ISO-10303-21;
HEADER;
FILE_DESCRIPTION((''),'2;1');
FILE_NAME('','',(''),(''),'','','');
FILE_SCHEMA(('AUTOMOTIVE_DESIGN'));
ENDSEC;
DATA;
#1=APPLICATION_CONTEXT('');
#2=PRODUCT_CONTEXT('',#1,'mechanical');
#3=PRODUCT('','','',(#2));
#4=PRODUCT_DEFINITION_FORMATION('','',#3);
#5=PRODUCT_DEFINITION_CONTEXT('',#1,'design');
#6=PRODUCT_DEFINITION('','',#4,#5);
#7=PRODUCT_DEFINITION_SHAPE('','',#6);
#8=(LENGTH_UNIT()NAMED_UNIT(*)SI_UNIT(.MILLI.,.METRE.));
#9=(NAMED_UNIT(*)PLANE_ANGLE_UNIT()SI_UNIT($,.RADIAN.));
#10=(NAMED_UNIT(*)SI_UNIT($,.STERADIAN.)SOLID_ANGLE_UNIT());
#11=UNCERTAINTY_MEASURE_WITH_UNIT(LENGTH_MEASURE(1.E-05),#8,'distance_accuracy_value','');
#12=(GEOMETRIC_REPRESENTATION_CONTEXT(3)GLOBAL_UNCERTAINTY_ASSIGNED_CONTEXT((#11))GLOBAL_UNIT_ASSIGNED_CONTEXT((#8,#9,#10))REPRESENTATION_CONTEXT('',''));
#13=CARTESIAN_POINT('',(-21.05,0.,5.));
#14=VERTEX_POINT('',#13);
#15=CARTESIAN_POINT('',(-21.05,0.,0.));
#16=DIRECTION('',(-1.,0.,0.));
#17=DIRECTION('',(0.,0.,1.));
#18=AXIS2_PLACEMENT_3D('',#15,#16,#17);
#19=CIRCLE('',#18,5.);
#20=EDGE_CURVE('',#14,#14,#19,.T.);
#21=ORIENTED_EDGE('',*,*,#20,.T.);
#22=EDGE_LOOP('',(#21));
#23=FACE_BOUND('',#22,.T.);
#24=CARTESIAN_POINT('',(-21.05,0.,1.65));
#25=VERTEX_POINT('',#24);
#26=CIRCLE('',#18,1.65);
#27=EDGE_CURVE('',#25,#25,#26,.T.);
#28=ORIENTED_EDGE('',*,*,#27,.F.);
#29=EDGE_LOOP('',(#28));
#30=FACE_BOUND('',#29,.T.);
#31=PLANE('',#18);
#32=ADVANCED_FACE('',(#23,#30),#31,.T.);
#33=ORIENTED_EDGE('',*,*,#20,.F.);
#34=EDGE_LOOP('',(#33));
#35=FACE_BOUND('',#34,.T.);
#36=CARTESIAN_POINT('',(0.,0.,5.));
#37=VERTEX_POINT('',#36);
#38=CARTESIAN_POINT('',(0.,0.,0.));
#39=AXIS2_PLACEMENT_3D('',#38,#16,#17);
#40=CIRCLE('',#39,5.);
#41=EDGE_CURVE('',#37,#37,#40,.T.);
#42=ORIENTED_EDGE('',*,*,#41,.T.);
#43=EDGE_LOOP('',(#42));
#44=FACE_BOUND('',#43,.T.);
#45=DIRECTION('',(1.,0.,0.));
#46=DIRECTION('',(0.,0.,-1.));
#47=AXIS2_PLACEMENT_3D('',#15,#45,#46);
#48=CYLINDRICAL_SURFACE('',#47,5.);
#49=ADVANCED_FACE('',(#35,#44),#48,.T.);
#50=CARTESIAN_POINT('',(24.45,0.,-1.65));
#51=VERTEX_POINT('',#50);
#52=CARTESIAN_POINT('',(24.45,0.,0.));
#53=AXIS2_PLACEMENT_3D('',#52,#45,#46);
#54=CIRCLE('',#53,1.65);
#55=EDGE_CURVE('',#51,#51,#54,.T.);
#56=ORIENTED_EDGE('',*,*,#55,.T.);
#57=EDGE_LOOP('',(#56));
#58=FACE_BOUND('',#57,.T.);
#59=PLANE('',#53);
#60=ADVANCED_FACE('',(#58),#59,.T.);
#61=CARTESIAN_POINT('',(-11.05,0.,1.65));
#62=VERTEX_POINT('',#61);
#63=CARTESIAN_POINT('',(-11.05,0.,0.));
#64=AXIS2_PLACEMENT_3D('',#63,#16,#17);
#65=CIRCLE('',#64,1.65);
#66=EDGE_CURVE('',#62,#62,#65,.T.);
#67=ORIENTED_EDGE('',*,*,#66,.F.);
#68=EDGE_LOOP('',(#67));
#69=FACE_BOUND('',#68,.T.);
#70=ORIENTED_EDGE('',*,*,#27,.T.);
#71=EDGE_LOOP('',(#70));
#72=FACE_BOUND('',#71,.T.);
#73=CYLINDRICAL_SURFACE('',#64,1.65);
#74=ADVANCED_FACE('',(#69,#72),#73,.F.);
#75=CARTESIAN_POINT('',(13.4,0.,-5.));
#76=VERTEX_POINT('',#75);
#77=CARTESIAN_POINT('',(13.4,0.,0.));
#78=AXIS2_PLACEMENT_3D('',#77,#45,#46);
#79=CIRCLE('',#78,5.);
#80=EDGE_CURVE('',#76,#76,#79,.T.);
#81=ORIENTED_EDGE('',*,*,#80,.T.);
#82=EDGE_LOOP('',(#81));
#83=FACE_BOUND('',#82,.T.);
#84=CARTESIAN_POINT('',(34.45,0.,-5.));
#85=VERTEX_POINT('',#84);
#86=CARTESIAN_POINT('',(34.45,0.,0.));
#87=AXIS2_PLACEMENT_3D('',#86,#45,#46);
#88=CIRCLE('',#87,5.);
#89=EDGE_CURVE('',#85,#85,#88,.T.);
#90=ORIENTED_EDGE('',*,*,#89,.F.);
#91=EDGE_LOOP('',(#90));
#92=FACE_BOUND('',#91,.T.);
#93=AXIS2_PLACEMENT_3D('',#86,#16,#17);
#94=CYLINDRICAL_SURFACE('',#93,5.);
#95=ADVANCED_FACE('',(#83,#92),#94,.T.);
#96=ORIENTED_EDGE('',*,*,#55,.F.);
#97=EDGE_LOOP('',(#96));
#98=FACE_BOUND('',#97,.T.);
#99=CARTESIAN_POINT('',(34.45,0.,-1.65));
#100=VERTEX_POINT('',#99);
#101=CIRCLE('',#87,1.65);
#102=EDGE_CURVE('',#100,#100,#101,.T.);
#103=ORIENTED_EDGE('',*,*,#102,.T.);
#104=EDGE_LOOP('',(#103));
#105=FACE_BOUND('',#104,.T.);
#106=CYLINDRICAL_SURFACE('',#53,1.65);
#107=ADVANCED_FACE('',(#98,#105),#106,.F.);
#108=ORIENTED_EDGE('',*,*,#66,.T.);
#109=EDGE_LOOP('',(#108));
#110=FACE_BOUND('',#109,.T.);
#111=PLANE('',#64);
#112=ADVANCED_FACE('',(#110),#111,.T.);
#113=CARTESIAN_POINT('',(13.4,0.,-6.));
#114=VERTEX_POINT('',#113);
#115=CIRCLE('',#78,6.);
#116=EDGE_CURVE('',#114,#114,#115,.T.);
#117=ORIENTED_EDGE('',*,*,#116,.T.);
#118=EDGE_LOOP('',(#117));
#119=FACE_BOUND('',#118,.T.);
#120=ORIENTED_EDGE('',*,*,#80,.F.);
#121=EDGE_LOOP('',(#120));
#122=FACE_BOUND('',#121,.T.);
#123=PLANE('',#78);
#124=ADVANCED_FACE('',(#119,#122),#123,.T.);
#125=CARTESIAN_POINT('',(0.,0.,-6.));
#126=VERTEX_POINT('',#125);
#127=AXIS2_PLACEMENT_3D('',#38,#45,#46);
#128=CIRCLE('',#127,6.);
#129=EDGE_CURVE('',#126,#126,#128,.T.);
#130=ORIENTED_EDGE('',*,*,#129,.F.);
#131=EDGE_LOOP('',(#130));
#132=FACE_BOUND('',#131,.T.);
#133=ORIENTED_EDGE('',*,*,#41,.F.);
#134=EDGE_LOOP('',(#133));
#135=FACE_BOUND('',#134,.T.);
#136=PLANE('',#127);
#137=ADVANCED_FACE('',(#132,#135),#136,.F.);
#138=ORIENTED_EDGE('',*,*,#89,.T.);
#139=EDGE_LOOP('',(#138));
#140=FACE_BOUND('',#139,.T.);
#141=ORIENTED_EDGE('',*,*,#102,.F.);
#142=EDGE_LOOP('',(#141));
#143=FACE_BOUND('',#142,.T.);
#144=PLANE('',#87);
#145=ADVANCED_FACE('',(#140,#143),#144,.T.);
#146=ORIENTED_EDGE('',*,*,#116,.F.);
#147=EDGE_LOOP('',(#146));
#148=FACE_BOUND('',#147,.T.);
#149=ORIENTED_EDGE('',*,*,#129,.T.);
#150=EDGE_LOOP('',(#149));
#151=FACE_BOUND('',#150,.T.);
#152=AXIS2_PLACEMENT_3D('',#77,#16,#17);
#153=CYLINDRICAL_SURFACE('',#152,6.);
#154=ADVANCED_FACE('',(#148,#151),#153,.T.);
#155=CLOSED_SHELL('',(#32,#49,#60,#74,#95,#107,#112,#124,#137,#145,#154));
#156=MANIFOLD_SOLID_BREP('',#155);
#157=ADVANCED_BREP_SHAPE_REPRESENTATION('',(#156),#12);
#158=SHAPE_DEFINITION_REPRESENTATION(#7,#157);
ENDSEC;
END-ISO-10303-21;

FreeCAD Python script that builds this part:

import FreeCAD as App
import Part
import Sketcher

V = App.Vector
Q = App.Units.Quantity

doc = App.newDocument("Part")
body = doc.addObject("PartDesign::Body", "Body")

# Sketch on YZ plane
sketch1 = body.newObject("Sketcher::SketchObject", "Sketch")
sketch1.AttachmentSupport = (doc.getObject("YZ_Plane"), [""])
sketch1.MapMode = "FlatFace"
sketch1.addGeometry(Part.Circle(V(0, 0, 0), V(0, 0, 1), 6), False)
sketch1.addConstraint(Sketcher.Constraint("Coincident", 0, 3, -1, 1))
sketch1.addConstraint(Sketcher.Constraint("Diameter", 0, Q("12 mm")))
pad1 = body.newObject("PartDesign::Pad", "Pad")
pad1.Profile = sketch1
pad1.Length = 13.4

# Sketch on YZ plane
sketch2 = body.newObject("Sketcher::SketchObject", "Sketch001")
sketch2.AttachmentSupport = (doc.getObject("YZ_Plane"), [""])
sketch2.MapMode = "FlatFace"
sketch2.AttachmentOffset = App.Placement(V(0, 0, 13.4), App.Rotation())
sketch2.addGeometry(Part.Circle(V(0, 0, 0), V(0, 0, 1), 5), False)
sketch2.addConstraint(Sketcher.Constraint("Coincident", 0, 3, -1, 1))
sketch2.addConstraint(Sketcher.Constraint("Diameter", 0, Q("10 mm")))
pad2 = body.newObject("PartDesign::Pad", "Pad001")
pad2.Profile = sketch2
pad2.Length = 21.05

# Sketch on YZ plane
sketch3 = body.newObject("Sketcher::SketchObject", "Sketch002")
sketch3.AttachmentSupport = (doc.getObject("YZ_Plane"), [""])
sketch3.MapMode = "FlatFace"
sketch3.AttachmentOffset = App.Placement(V(0, 0, -21.05), App.Rotation())
sketch3.addGeometry(Part.Circle(V(0, 0, 0), V(0, 0, 1), 5), False)
sketch3.addConstraint(Sketcher.Constraint("Coincident", 0, 3, -1, 1))
sketch3.addConstraint(Sketcher.Constraint("Diameter", 0, Q("10 mm")))
pad3 = body.newObject("PartDesign::Pad", "Pad002")
pad3.Profile = sketch3
pad3.Length = 21.05

# Sketch on YZ plane
sketch4 = body.newObject("Sketcher::SketchObject", "Sketch003")
sketch4.AttachmentSupport = (doc.getObject("YZ_Plane"), [""])
sketch4.MapMode = "FlatFace"
sketch4.AttachmentOffset = App.Placement(V(0, 0, 34.45), App.Rotation())
sketch4.addGeometry(Part.Circle(V(0, 0, 0), V(0, 0, 1), 1.6), False)
sketch4.addConstraint(Sketcher.Constraint("Coincident", 0, 3, -1, 1))
sketch4.addConstraint(Sketcher.Constraint("Diameter", 0, Q("3.3 mm")))
pocket1 = body.newObject("PartDesign::Pocket", "Pocket")
pocket1.Profile = sketch4
pocket1.Length = 10

# Sketch on YZ plane
sketch5 = body.newObject("Sketcher::SketchObject", "Sketch004")
sketch5.AttachmentSupport = (doc.getObject("YZ_Plane"), [""])
sketch5.MapMode = "FlatFace"
sketch5.AttachmentOffset = App.Placement(V(0, 0, -11.05), App.Rotation())
sketch5.addGeometry(Part.Circle(V(0, 0, 0), V(0, 0, 1), 1.6), False)
sketch5.addConstraint(Sketcher.Constraint("Coincident", 0, 3, -1, 1))
sketch5.addConstraint(Sketcher.Constraint("Diameter", 0, Q("3.3 mm")))
pocket2 = body.newObject("PartDesign::Pocket", "Pocket001")
pocket2.Profile = sketch5
pocket2.Length = 10

doc.recompute()
